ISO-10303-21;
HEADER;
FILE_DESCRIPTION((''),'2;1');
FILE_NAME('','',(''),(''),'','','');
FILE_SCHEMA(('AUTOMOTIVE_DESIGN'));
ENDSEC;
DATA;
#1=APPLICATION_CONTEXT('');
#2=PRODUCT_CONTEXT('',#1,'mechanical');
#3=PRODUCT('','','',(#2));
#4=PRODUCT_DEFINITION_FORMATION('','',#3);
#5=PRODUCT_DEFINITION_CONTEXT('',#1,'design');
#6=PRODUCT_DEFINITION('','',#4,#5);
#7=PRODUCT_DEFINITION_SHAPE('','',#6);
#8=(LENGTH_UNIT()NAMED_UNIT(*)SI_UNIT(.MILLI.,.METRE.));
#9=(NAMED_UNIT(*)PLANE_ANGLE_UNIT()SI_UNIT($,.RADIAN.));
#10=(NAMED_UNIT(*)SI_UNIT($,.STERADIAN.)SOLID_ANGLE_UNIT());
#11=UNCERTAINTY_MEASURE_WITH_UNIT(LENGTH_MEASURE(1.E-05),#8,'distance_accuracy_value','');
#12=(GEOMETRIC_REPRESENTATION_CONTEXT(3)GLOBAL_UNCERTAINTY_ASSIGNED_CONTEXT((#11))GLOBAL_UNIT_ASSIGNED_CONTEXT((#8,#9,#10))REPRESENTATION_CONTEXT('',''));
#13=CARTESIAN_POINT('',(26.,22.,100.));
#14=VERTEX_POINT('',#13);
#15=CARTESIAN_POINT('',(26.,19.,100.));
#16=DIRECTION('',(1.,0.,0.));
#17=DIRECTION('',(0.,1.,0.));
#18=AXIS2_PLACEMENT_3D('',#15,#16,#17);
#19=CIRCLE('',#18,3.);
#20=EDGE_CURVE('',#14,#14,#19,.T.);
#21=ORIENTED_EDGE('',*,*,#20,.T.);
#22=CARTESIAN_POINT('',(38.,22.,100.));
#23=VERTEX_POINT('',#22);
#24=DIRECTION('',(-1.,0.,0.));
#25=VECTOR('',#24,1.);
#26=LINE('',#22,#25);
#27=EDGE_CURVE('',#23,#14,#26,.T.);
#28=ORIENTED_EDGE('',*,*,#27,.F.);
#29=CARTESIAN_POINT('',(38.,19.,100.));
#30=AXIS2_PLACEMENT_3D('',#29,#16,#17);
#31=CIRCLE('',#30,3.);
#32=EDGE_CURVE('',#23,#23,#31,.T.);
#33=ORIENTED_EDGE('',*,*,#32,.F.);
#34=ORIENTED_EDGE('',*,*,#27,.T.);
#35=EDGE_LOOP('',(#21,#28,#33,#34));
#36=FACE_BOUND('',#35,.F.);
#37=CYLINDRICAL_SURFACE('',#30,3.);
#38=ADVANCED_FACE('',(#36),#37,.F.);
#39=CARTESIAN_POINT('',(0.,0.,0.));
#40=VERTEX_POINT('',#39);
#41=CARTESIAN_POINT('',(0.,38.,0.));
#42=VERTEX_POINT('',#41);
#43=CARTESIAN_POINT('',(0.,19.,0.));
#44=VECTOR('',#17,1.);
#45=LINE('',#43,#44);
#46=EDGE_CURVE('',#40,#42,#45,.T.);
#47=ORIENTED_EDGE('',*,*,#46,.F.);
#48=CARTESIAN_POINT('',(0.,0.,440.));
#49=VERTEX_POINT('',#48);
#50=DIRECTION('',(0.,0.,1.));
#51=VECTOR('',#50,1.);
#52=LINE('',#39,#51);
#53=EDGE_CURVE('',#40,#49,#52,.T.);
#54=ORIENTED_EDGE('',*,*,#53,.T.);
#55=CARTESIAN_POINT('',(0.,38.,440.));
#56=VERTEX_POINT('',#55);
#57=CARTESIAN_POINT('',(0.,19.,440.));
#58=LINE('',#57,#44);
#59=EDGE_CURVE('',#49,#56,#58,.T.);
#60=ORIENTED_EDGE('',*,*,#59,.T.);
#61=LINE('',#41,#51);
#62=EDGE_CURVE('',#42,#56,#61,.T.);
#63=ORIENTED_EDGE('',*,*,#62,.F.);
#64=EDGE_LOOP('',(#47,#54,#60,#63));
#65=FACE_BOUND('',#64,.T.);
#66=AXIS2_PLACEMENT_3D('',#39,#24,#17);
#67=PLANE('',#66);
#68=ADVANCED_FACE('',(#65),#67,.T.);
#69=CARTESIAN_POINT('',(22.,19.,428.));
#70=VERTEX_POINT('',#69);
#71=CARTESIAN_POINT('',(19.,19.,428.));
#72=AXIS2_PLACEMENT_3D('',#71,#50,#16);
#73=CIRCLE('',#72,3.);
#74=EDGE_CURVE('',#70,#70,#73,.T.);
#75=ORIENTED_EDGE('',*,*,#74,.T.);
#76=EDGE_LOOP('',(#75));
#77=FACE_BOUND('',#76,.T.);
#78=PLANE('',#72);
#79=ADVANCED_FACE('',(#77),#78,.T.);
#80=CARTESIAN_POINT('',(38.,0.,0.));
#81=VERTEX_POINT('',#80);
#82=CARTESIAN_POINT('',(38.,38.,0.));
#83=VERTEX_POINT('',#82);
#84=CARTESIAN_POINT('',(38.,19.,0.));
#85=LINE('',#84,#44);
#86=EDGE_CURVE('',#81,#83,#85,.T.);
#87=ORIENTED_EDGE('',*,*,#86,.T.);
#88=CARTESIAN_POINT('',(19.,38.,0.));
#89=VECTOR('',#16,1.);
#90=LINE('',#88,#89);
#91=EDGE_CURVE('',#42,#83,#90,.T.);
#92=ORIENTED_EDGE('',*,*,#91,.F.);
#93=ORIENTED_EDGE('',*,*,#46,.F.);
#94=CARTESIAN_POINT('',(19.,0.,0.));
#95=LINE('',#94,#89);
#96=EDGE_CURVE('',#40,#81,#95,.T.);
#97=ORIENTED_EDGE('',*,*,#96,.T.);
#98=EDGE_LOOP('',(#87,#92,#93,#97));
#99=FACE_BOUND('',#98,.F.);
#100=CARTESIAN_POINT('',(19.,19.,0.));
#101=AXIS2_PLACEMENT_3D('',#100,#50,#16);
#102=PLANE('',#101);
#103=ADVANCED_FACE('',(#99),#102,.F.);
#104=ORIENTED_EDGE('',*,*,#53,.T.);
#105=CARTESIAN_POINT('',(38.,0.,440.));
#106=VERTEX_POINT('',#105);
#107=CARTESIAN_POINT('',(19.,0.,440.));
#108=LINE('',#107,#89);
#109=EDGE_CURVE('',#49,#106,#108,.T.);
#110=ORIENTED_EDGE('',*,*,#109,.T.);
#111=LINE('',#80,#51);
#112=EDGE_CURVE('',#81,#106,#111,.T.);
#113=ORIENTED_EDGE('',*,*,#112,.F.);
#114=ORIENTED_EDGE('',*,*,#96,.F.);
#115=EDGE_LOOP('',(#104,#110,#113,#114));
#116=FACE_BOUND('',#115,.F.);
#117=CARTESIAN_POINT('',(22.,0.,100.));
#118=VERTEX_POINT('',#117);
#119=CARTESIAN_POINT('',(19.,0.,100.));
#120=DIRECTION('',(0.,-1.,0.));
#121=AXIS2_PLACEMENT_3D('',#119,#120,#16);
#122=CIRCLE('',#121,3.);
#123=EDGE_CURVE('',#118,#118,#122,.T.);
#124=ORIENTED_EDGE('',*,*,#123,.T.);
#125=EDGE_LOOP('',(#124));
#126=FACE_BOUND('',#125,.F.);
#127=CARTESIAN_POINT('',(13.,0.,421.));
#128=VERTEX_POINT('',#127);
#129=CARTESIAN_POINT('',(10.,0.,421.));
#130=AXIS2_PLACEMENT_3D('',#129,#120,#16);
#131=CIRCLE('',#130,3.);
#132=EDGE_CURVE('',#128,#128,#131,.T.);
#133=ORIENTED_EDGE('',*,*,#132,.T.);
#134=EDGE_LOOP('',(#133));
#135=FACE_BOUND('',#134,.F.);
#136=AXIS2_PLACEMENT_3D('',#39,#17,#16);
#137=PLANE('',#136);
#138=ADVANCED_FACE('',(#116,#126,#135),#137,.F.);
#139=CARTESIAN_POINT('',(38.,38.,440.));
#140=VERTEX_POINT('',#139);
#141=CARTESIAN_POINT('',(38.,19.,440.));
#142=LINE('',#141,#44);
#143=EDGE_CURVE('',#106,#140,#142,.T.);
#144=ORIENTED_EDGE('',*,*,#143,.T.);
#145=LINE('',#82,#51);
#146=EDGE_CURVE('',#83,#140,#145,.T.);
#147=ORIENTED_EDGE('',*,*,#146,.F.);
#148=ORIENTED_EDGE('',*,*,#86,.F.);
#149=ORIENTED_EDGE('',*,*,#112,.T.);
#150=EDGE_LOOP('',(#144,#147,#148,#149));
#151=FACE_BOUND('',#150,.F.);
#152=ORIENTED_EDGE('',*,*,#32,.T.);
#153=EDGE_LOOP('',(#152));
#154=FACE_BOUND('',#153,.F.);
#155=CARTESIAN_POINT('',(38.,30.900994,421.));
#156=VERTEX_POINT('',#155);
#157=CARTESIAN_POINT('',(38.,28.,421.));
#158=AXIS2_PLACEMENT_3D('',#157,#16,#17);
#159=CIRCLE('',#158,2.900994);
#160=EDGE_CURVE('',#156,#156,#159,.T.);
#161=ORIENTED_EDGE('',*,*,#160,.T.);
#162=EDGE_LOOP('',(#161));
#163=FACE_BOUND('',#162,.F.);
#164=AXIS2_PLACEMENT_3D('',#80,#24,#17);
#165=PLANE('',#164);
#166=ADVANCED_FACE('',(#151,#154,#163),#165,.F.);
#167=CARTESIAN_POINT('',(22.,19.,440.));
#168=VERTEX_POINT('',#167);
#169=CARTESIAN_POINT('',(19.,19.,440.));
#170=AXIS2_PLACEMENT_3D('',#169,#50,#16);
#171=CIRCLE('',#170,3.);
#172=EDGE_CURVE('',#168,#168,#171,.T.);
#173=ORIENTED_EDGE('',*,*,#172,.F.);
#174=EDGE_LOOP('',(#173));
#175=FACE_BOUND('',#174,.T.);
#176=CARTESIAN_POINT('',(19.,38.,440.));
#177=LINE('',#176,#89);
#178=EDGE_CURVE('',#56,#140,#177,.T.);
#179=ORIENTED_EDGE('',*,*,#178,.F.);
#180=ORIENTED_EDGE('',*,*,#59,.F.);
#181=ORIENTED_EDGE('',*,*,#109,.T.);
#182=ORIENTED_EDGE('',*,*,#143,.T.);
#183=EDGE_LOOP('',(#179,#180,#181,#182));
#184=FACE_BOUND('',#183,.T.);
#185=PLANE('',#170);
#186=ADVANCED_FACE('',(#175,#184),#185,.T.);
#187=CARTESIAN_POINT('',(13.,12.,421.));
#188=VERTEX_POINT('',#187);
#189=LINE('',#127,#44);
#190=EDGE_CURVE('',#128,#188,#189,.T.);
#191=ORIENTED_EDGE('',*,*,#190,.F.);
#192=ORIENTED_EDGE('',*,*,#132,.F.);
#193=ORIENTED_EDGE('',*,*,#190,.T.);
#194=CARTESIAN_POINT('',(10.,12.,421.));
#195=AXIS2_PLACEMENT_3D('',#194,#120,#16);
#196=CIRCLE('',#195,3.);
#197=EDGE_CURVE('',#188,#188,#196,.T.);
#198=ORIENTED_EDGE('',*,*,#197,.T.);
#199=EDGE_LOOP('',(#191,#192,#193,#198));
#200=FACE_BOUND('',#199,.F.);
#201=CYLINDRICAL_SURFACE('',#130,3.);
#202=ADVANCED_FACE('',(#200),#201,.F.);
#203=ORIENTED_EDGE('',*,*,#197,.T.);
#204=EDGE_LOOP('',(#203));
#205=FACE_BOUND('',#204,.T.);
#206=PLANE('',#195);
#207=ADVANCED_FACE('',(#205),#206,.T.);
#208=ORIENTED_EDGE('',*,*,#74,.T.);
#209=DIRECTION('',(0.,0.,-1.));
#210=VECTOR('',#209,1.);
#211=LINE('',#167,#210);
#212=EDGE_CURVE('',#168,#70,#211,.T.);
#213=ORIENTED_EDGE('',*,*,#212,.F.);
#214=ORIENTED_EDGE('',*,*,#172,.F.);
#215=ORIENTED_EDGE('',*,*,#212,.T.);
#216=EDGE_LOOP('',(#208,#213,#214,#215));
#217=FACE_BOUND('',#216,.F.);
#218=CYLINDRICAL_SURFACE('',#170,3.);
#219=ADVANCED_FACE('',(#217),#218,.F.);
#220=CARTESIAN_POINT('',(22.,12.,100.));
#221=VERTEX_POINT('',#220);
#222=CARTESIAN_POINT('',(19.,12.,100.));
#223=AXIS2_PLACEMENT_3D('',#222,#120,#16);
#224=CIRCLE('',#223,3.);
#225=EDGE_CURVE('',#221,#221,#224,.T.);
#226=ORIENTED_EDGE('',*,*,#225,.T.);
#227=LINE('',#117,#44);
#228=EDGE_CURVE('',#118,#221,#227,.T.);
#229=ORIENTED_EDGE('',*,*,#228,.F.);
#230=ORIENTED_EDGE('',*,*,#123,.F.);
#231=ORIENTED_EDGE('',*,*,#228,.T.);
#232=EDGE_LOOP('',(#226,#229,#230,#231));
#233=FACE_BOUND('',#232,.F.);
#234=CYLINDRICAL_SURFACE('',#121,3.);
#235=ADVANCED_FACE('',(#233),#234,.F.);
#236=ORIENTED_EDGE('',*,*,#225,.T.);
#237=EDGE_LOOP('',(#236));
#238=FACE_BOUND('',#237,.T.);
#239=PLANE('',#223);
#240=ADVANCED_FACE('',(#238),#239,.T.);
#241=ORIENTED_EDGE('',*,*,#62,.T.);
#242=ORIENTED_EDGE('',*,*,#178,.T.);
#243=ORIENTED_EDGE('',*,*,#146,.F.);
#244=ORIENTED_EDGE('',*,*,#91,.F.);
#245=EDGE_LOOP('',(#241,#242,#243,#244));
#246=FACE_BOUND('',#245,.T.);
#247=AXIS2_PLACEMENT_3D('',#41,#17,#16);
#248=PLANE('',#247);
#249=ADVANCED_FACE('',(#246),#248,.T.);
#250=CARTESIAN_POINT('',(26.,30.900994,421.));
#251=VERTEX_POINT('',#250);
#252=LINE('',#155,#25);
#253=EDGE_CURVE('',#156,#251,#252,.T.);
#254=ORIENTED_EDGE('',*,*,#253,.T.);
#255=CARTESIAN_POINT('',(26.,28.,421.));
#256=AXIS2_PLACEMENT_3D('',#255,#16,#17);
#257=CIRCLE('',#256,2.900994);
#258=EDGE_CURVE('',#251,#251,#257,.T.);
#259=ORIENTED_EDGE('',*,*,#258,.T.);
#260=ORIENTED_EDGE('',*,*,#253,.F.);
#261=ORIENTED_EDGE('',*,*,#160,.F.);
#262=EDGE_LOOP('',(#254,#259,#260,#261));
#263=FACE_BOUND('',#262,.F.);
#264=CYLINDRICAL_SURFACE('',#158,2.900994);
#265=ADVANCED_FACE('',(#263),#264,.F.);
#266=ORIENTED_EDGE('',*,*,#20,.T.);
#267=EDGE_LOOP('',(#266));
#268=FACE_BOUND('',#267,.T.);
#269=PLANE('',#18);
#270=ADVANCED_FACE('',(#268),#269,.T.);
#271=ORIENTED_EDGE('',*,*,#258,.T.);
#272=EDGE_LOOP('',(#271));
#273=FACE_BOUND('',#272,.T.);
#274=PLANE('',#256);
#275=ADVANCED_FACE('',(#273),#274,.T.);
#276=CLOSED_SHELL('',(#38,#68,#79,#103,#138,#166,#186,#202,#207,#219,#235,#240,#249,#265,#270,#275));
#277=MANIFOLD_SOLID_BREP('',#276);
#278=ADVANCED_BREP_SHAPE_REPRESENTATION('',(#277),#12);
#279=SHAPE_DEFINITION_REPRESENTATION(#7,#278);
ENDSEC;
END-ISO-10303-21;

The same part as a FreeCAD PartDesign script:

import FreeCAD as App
import Part
import Sketcher
from FreeCAD import Vector

doc = App.newDocument("Part")
params = doc.addObject("Spreadsheet::Sheet", "Params")
for row, (alias, value) in enumerate([
    ("sketch1_width", "38 mm"),
    ("pad1_length", "440 mm"),
    ("sketch2_diameter", "6 mm"),
    ("pocket1_length", "12 mm"),
    ("pocket2_length", "12 mm"),
    ("sketch4_diameter", "6 mm"),
    ("pocket3_length", "12 mm"),
    ("sketch5_diameter", "6 mm"),
    ("pocket4_length", "12 mm"),
    ("sketch6_diameter", "6 mm"),
    ("pocket5_length", "12 mm"),
    ("sketch7_diameter", "6 mm"),
    ("pocket6_length", "12 mm"),
], start=1):
    params.set(f"A{row}", alias)
    params.set(f"B{row}", "=" + value)
    params.setAlias(f"B{row}", alias)

body = doc.addObject("PartDesign::Body", "Body")

# Sketch on XY plane
sketch1 = body.newObject("Sketcher::SketchObject", "Sketch")
sketch1.AttachmentSupport = (doc.getObject("XY_Plane"), [""])
sketch1.MapMode = "FlatFace"
sketch1.addGeometry([
    Part.LineSegment(Vector(0, 38, 0), Vector(0, 0, 0)),
    Part.LineSegment(Vector(0, 0, 0), Vector(38, 0, 0)),
    Part.LineSegment(Vector(38, 0, 0), Vector(38, 38, 0)),
    Part.LineSegment(Vector(38, 38, 0), Vector(0, 38, 0)),
], False)
sketch1.addConstraint([
    Sketcher.Constraint("Coincident", 0, 2, 1, 1),
    Sketcher.Constraint("Coincident", 1, 2, 2, 1),
    Sketcher.Constraint("Coincident", 2, 2, 3, 1),
    Sketcher.Constraint("Coincident", 3, 2, 0, 1),
    Sketcher.Constraint("Vertical", 0),
    Sketcher.Constraint("Horizontal", 1),
    Sketcher.Constraint("Vertical", 2),
    Sketcher.Constraint("Horizontal", 3),
    Sketcher.Constraint("Coincident", 0, 2, -1, 1),
    Sketcher.Constraint("Equal", 3, 0),
    Sketcher.Constraint("DistanceX", 1, 1, 1, 2, 38.0),
])
sketch1.setExpression("Constraints[10]", "Params.sketch1_width")
pad1 = body.newObject("PartDesign::Pad", "Pad")
pad1.Profile = sketch1
pad1.setExpression("Length", "Params.pad1_length")

# Sketch on XZ plane
sketch2 = body.newObject("Sketcher::SketchObject", "Sketch001")
sketch2.AttachmentSupport = (doc.getObject("XZ_Plane"), [""])
sketch2.MapMode = "FlatFace"
sketch2.addGeometry(Part.Circle(Vector(10, 421, 0), Vector(0, 0, 1), 3), False)
sketch2.addConstraint([
    Sketcher.Constraint("Diameter", 0, 6.0),
    Sketcher.Constraint("DistanceX", -1, 1, 0, 3, 10.0),
    Sketcher.Constraint("DistanceY", -1, 1, 0, 3, 421.0),
])
sketch2.setExpression("Constraints[0]", "Params.sketch2_diameter")
pocket1 = body.newObject("PartDesign::Pocket", "Pocket")
pocket1.Profile = sketch2
pocket1.setExpression("Length", "Params.pocket1_length")

# Sketch on YZ plane
sketch3 = body.newObject("Sketcher::SketchObject", "Sketch002")
sketch3.AttachmentSupport = (doc.getObject("YZ_Plane"), [""])
sketch3.MapMode = "FlatFace"
sketch3.AttachmentOffset = App.Placement(Vector(0, 0, 38), App.Rotation())
sketch3.addGeometry(Part.Circle(Vector(28, 421, 0), Vector(0, 0, 1), 2.9), False)
sketch3.addConstraint([
    Sketcher.Constraint("DistanceX", -1, 1, 0, 3, 28.0),
    Sketcher.Constraint("DistanceY", -1, 1, 0, 3, 421.0),
    Sketcher.Constraint("Diameter", 0, 5.801988),
])
pocket2 = body.newObject("PartDesign::Pocket", "Pocket001")
pocket2.Profile = sketch3
pocket2.setExpression("Length", "Params.pocket2_length")

# Sketch on XY plane
sketch4 = body.newObject("Sketcher::SketchObject", "Sketch003")
sketch4.AttachmentSupport = (doc.getObject("XY_Plane"), [""])
sketch4.MapMode = "FlatFace"
sketch4.AttachmentOffset = App.Placement(Vector(0, 0, 440), App.Rotation())
sketch4.addGeometry(Part.Circle(Vector(19, 19, 0), Vector(0, 0, 1), 3), False)
sketch4.addConstraint([
    Sketcher.Constraint("Diameter", 0, 6.0),
    Sketcher.Constraint("DistanceX", -1, 1, 0, 3, 19.0),
    Sketcher.Constraint("DistanceY", -1, 1, 0, 3, 19.0),
])
sketch4.setExpression("Constraints[0]", "Params.sketch4_diameter")
pocket3 = body.newObject("PartDesign::Pocket", "Pocket002")
pocket3.Profile = sketch4
pocket3.setExpression("Length", "Params.pocket3_length")

# Sketch on XZ plane
sketch5 = body.newObject("Sketcher::SketchObject", "Sketch004")
sketch5.AttachmentSupport = (doc.getObject("XZ_Plane"), [""])
sketch5.MapMode = "FlatFace"
sketch5.addGeometry(Part.Circle(Vector(19, 100, 0), Vector(0, 0, 1), 3), False)
sketch5.addConstraint([
    Sketcher.Constraint("Diameter", 0, 6.0),
    Sketcher.Constraint("DistanceX", -1, 1, 0, 3, 19.0),
    Sketcher.Constraint("DistanceY", -1, 1, 0, 3, 100.0),
])
sketch5.setExpression("Constraints[0]", "Params.sketch5_diameter")
pocket4 = body.newObject("PartDesign::Pocket", "Pocket003")
pocket4.Profile = sketch5
pocket4.setExpression("Length", "Params.pocket4_length")

# Sketch on YZ plane
sketch6 = body.newObject("Sketcher::SketchObject", "Sketch005")
sketch6.AttachmentSupport = (doc.getObject("YZ_Plane"), [""])
sketch6.MapMode = "FlatFace"
sketch6.AttachmentOffset = App.Placement(Vector(0, 0, 38), App.Rotation())
sketch6.addGeometry(Part.Circle(Vector(19, 100, 0), Vector(0, 0, 1), 3), False)
sketch6.addConstraint([
    Sketcher.Constraint("Diameter", 0, 6.0),
    Sketcher.Constraint("DistanceX", -1, 1, 0, 3, 19.0),
    Sketcher.Constraint("DistanceY", -1, 1, 0, 3, 100.0),
])
sketch6.setExpression("Constraints[0]", "Params.sketch6_diameter")
pocket5 = body.newObject("PartDesign::Pocket", "Pocket004")
pocket5.Profile = sketch6
pocket5.setExpression("Length", "Params.pocket5_length")

# Sketch on XY plane
sketch7 = body.newObject("Sketcher::SketchObject", "Sketch006")
sketch7.AttachmentSupport = (doc.getObject("XY_Plane"), [""])
sketch7.MapMode = "FlatFace"
sketch7.AttachmentOffset = App.Placement(Vector(0, 0, 440), App.Rotation())
sketch7.addGeometry(Part.Circle(Vector(19, 19, 0), Vector(0, 0, 1), 3), False)
sketch7.addConstraint([
    Sketcher.Constraint("Diameter", 0, 6.0),
    Sketcher.Constraint("DistanceX", -1, 1, 0, 3, 19.0),
    Sketcher.Constraint("DistanceY", -1, 1, 0, 3, 19.0),
])
sketch7.setExpression("Constraints[0]", "Params.sketch7_diameter")
pocket6 = body.newObject("PartDesign::Pocket", "Pocket005")
pocket6.Profile = sketch7
pocket6.setExpression("Length", "Params.pocket6_length")

doc.recompute()
